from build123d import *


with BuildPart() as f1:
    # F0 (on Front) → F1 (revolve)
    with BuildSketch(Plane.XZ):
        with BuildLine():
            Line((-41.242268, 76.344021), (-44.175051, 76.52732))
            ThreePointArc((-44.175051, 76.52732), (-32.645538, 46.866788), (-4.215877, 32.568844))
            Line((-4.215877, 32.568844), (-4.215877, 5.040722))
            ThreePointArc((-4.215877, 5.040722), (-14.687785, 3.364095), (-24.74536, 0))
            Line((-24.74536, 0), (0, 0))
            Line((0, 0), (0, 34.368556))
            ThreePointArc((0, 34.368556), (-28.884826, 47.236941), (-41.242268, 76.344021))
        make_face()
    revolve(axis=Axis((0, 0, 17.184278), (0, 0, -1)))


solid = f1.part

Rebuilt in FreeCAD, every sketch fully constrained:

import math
import FreeCAD as App
import Part
import Sketcher
from FreeCAD import Vector
Q = App.Units.Quantity

doc = App.newDocument("Part")
body = doc.addObject("PartDesign::Body", "Body")

# Sketch on XZ plane
sketch1 = doc.addObject("Sketcher::SketchObject", "Sketch")
body.addObject(sketch1)
sketch1.AttachmentSupport = (doc.XZ_Plane, [""])
sketch1.MapMode = "FlatFace"
sketch1.addGeometry(Part.LineSegment(Vector(-41.2, 76.3, 0), Vector(-44.2, 76.5, 0)), False)
sketch1.addGeometry(Part.ArcOfCircle(Part.Circle(Vector(0.2, 76.7, 0), Vector(0, 0, 1), 44.3), math.radians(-180), math.radians(-96)), False)
sketch1.addGeometry(Part.LineSegment(Vector(-4.2, 32.6, 0), Vector(-4.2, 5, 0)), False)
sketch1.addGeometry(Part.ArcOfCircle(Part.Circle(Vector(0.7, -59.5, 0), Vector(0, 0, 1), 64.7), math.radians(94.4), math.radians(113.19)), False)
sketch1.addGeometry(Part.LineSegment(Vector(-24.7, 0, 0), Vector(0, 0, 0)), False)
sketch1.addGeometry(Part.LineSegment(Vector(0, 0, 0), Vector(0, 34.4, 0)), False)
sketch1.addGeometry(Part.ArcOfCircle(Part.Circle(Vector(1.9, 77.5, 0), Vector(0, 0, 1), 43.2), math.radians(-178), math.radians(-93)), False)
sketch1.addConstraint(Sketcher.Constraint("Coincident", 0, 2, 1, 1))
sketch1.addConstraint(Sketcher.Constraint("Coincident", 1, 2, 2, 1))
sketch1.addConstraint(Sketcher.Constraint("Coincident", 2, 2, 3, 1))
sketch1.addConstraint(Sketcher.Constraint("Coincident", 3, 2, 4, 1))
sketch1.addConstraint(Sketcher.Constraint("Coincident", 4, 2, 5, 1))
sketch1.addConstraint(Sketcher.Constraint("Coincident", 5, 2, 6, 2))
sketch1.addConstraint(Sketcher.Constraint("Coincident", 6, 1, 0, 1))
sketch1.addConstraint(Sketcher.Constraint("Vertical", 2))
sketch1.addConstraint(Sketcher.Constraint("Horizontal", 4))
sketch1.addConstraint(Sketcher.Constraint("Vertical", 5))
sketch1.addConstraint(Sketcher.Constraint("Coincident", 4, 2, -1, 1))
sketch1.addConstraint(Sketcher.Constraint("Radius", 3, Q("64.728689 mm")))
sketch1.addConstraint(Sketcher.Constraint("Radius", 6, Q("43.156142 mm")))
sketch1.addConstraint(Sketcher.Constraint("Radius", 1, Q("44.339628 mm")))
sketch1.addConstraint(Sketcher.Constraint("DistanceX", 4, 1, 4, 2, Q("24.74536 mm")))
sketch1.addConstraint(Sketcher.Constraint("DistanceY", 2, 2, 2, 1, Q("27.528122 mm")))
sketch1.addConstraint(Sketcher.Constraint("DistanceY", 2, 2, 0, 2, Q("71.486598 mm")))
sketch1.addConstraint(Sketcher.Constraint("DistanceY", 6, 1, 0, 2, Q("0.183299 mm")))
sketch1.addConstraint(Sketcher.Constraint("DistanceY", 5, 1, 5, 2, Q("34.368556 mm")))
sketch1.addConstraint(Sketcher.Constraint("DistanceY", -1, 1, 1, 3, Q("76.691592 mm")))
sketch1.addConstraint(Sketcher.Constraint("DistanceX", 0, 2, -1, 1, Q("44.175051 mm")))
sketch1.addConstraint(Sketcher.Constraint("DistanceY", -1, 1, 0, 2, Q("76.52732 mm")))
sketch1.addConstraint(Sketcher.Constraint("DistanceX", 1, 3, 6, 3, Q("1.734571 mm")))
revolution = doc.addObject("PartDesign::Revolution", "Revolution")
body.addObject(revolution)
revolution.Profile = sketch1
revolution.ReferenceAxis = (sketch1, ["V_Axis"])
revolution.Angle = 360

doc.recompute()
